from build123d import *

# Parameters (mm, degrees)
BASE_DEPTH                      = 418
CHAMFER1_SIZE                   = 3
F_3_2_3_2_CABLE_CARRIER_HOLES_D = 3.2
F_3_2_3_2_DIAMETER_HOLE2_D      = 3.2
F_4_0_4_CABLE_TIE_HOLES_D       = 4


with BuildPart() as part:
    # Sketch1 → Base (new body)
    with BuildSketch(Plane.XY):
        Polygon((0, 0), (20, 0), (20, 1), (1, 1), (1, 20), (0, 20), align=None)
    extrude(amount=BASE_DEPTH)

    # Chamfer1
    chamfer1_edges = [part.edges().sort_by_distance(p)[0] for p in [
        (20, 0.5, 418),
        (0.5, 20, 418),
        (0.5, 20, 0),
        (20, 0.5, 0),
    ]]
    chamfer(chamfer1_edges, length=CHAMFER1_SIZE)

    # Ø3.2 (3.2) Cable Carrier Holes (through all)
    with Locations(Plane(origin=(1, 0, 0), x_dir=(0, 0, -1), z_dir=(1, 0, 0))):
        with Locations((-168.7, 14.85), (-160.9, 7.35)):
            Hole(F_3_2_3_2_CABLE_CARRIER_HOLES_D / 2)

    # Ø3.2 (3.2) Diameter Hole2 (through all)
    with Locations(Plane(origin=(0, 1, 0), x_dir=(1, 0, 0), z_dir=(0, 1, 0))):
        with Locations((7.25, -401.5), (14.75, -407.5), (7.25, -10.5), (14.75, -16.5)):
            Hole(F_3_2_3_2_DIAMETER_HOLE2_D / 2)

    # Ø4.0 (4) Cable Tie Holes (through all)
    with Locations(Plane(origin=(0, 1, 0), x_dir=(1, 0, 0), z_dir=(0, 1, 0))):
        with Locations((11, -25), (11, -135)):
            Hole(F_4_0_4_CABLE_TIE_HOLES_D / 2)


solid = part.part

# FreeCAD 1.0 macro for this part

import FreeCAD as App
import Part
import Sketcher
from FreeCAD import Vector


def edges_at(feature, points):
    """Names of the edges that pass closest to the given points."""
    edges = feature.Shape.Edges
    near = lambda p: min(range(len(edges)), key=lambda i: edges[i].distToShape(Part.Vertex(*p))[0])
    return sorted({f"Edge{near(p) + 1}" for p in points})


def add_polygon(sketch, points):
    """Adds a closed chain of lines whose ends are joined by coincident constraints."""
    first, n = sketch.GeometryCount, len(points)
    for a, b in zip(points, points[1:] + points[:1]):
        sketch.addGeometry(Part.LineSegment(App.Vector(*a, 0), App.Vector(*b, 0)), False)
    for i in range(n):
        sketch.addConstraint(Sketcher.Constraint("Coincident", first + i, 2, first + (i + 1) % n, 1))

doc = App.newDocument("Part")
body = doc.addObject("PartDesign::Body", "Body")

# Sketch on XY plane
sketch1 = doc.addObject("Sketcher::SketchObject", "Sketch")
body.addObject(sketch1)
sketch1.AttachmentSupport = (doc.XY_Plane, [""])
sketch1.MapMode = "FlatFace"
add_polygon(sketch1, [(0, 0), (20, 0), (20, 1), (1, 1), (1, 20), (0, 20)])  # lines 0-5
sketch1.addConstraint([
    Sketcher.Constraint("Horizontal", 0),
    Sketcher.Constraint("Vertical", 1),
    Sketcher.Constraint("Horizontal", 2),
    Sketcher.Constraint("Vertical", 3),
    Sketcher.Constraint("Horizontal", 4),
    Sketcher.Constraint("Vertical", 5),
    Sketcher.Constraint("Coincident", 5, 2, -1, 1),
    Sketcher.Constraint("Equal", 4, 1),
    Sketcher.Constraint("Equal", 2, 3),
    Sketcher.Constraint("DistanceX", 0, 1, 0, 2, 20.0),
    Sketcher.Constraint("DistanceX", 2, 2, 2, 1, 19.0),
])
pad1 = doc.addObject("PartDesign::Pad", "Pad")
body.addObject(pad1)
pad1.Profile = sketch1
pad1.Length = 418
doc.recompute()

chamfer = doc.addObject("PartDesign::Chamfer", "Chamfer")
body.addObject(chamfer)
chamfer.Base = (pad1, edges_at(pad1, [
    (20, 0.5, 418),
    (0.5, 20, 418),
    (0.5, 20, 0),
    (20, 0.5, 0),
]))
chamfer.Size = 3

# Sketch on YZ plane
sketch2 = doc.addObject("Sketcher::SketchObject", "Sketch001")
body.addObject(sketch2)
sketch2.AttachmentSupport = (doc.YZ_Plane, [""])
sketch2.MapMode = "FlatFace"
sketch2.AttachmentOffset = App.Placement(Vector(0, 0, 1), App.Rotation())
sketch2.addGeometry([
    Part.Circle(Vector(14.85, 168.7, 0), Vector(0, 0, 1), 1.6),
    Part.Circle(Vector(7.35, 160.9, 0), Vector(0, 0, 1), 1.6),
], False)
sketch2.addConstraint([
    Sketcher.Constraint("Equal", 0, 1),
    Sketcher.Constraint("Diameter", 0, 3.2),
    Sketcher.Constraint("DistanceY", -1, 1, 0, 3, 168.7),
    Sketcher.Constraint("DistanceY", -1, 1, 1, 3, 160.9),
    Sketcher.Constraint("DistanceX", 1, 3, 0, 3, 7.5),
    Sketcher.Constraint("DistanceX", -1, 1, 0, 3, 14.85),
])
doc.recompute()
hole = doc.addObject("PartDesign::Hole", "Hole")
body.addObject(hole)
hole.Profile = sketch2
hole.ThreadType = "None"
hole.Diameter = 3.2
hole.DepthType = "ThroughAll"

# Sketch on XZ plane
sketch3 = doc.addObject("Sketcher::SketchObject", "Sketch002")
body.addObject(sketch3)
sketch3.AttachmentSupport = (doc.XZ_Plane, [""])
sketch3.MapMode = "FlatFace"
sketch3.AttachmentOffset = App.Placement(Vector(0, 0, -1), App.Rotation())
sketch3.addGeometry([
    Part.Circle(Vector(7.25, 401.5, 0), Vector(0, 0, 1), 1.6),
    Part.Circle(Vector(14.75, 407.5, 0), Vector(0, 0, 1), 1.6),
    Part.Circle(Vector(7.25, 10.5, 0), Vector(0, 0, 1), 1.6),
    Part.Circle(Vector(14.75, 16.5, 0), Vector(0, 0, 1), 1.6),
], False)
sketch3.addConstraint([
    Sketcher.Constraint("Equal", 0, 1),
    Sketcher.Constraint("Equal", 1, 2),
    Sketcher.Constraint("Equal", 2, 3),
    Sketcher.Constraint("Vertical", 0, 3, 2, 3),
    Sketcher.Constraint("Vertical", 1, 3, 3, 3),
    Sketcher.Constraint("Diameter", 0, 3.2),
    Sketcher.Constraint("DistanceY", 0, 3, 1, 3, 6.0),
    Sketcher.Constraint("DistanceY", 2, 3, 0, 3, 391.0),
    Sketcher.Constraint("DistanceY", 2, 3, 3, 3, 6.0),
    Sketcher.Constraint("DistanceY", -1, 1, 0, 3, 401.5),
    Sketcher.Constraint("DistanceX", 0, 3, 1, 3, 7.5),
    Sketcher.Constraint("DistanceX", -1, 1, 0, 3, 7.25),
])
doc.recompute()
hole2 = doc.addObject("PartDesign::Hole", "Hole001")
body.addObject(hole2)
hole2.Profile = sketch3
hole2.ThreadType = "None"
hole2.Diameter = 3.2
hole2.DepthType = "ThroughAll"
hole2.Reversed = True

# Sketch on XZ plane
sketch4 = doc.addObject("Sketcher::SketchObject", "Sketch003")
body.addObject(sketch4)
sketch4.AttachmentSupport = (doc.XZ_Plane, [""])
sketch4.MapMode = "FlatFace"
sketch4.AttachmentOffset = App.Placement(Vector(0, 0, -1), App.Rotation())
sketch4.addGeometry([
    Part.Circle(Vector(11, 25, 0), Vector(0, 0, 1), 2),
    Part.Circle(Vector(11, 135, 0), Vector(0, 0, 1), 2),
], False)
sketch4.addConstraint([
    Sketcher.Constraint("Equal", 0, 1),
    Sketcher.Constraint("Vertical", 0, 3, 1, 3),
    Sketcher.Constraint("Diameter", 0, 4.0),
    Sketcher.Constraint("DistanceX", -1, 1, 0, 3, 11.0),
    Sketcher.Constraint("DistanceY", -1, 1, 0, 3, 25.0),
    Sketcher.Constraint("DistanceY", -1, 1, 1, 3, 135.0),
])
doc.recompute()
hole3 = doc.addObject("PartDesign::Hole", "Hole002")
body.addObject(hole3)
hole3.Profile = sketch4
hole3.ThreadType = "None"
hole3.Diameter = 4
hole3.DepthType = "ThroughAll"
hole3.Reversed = True

doc.recompute()
